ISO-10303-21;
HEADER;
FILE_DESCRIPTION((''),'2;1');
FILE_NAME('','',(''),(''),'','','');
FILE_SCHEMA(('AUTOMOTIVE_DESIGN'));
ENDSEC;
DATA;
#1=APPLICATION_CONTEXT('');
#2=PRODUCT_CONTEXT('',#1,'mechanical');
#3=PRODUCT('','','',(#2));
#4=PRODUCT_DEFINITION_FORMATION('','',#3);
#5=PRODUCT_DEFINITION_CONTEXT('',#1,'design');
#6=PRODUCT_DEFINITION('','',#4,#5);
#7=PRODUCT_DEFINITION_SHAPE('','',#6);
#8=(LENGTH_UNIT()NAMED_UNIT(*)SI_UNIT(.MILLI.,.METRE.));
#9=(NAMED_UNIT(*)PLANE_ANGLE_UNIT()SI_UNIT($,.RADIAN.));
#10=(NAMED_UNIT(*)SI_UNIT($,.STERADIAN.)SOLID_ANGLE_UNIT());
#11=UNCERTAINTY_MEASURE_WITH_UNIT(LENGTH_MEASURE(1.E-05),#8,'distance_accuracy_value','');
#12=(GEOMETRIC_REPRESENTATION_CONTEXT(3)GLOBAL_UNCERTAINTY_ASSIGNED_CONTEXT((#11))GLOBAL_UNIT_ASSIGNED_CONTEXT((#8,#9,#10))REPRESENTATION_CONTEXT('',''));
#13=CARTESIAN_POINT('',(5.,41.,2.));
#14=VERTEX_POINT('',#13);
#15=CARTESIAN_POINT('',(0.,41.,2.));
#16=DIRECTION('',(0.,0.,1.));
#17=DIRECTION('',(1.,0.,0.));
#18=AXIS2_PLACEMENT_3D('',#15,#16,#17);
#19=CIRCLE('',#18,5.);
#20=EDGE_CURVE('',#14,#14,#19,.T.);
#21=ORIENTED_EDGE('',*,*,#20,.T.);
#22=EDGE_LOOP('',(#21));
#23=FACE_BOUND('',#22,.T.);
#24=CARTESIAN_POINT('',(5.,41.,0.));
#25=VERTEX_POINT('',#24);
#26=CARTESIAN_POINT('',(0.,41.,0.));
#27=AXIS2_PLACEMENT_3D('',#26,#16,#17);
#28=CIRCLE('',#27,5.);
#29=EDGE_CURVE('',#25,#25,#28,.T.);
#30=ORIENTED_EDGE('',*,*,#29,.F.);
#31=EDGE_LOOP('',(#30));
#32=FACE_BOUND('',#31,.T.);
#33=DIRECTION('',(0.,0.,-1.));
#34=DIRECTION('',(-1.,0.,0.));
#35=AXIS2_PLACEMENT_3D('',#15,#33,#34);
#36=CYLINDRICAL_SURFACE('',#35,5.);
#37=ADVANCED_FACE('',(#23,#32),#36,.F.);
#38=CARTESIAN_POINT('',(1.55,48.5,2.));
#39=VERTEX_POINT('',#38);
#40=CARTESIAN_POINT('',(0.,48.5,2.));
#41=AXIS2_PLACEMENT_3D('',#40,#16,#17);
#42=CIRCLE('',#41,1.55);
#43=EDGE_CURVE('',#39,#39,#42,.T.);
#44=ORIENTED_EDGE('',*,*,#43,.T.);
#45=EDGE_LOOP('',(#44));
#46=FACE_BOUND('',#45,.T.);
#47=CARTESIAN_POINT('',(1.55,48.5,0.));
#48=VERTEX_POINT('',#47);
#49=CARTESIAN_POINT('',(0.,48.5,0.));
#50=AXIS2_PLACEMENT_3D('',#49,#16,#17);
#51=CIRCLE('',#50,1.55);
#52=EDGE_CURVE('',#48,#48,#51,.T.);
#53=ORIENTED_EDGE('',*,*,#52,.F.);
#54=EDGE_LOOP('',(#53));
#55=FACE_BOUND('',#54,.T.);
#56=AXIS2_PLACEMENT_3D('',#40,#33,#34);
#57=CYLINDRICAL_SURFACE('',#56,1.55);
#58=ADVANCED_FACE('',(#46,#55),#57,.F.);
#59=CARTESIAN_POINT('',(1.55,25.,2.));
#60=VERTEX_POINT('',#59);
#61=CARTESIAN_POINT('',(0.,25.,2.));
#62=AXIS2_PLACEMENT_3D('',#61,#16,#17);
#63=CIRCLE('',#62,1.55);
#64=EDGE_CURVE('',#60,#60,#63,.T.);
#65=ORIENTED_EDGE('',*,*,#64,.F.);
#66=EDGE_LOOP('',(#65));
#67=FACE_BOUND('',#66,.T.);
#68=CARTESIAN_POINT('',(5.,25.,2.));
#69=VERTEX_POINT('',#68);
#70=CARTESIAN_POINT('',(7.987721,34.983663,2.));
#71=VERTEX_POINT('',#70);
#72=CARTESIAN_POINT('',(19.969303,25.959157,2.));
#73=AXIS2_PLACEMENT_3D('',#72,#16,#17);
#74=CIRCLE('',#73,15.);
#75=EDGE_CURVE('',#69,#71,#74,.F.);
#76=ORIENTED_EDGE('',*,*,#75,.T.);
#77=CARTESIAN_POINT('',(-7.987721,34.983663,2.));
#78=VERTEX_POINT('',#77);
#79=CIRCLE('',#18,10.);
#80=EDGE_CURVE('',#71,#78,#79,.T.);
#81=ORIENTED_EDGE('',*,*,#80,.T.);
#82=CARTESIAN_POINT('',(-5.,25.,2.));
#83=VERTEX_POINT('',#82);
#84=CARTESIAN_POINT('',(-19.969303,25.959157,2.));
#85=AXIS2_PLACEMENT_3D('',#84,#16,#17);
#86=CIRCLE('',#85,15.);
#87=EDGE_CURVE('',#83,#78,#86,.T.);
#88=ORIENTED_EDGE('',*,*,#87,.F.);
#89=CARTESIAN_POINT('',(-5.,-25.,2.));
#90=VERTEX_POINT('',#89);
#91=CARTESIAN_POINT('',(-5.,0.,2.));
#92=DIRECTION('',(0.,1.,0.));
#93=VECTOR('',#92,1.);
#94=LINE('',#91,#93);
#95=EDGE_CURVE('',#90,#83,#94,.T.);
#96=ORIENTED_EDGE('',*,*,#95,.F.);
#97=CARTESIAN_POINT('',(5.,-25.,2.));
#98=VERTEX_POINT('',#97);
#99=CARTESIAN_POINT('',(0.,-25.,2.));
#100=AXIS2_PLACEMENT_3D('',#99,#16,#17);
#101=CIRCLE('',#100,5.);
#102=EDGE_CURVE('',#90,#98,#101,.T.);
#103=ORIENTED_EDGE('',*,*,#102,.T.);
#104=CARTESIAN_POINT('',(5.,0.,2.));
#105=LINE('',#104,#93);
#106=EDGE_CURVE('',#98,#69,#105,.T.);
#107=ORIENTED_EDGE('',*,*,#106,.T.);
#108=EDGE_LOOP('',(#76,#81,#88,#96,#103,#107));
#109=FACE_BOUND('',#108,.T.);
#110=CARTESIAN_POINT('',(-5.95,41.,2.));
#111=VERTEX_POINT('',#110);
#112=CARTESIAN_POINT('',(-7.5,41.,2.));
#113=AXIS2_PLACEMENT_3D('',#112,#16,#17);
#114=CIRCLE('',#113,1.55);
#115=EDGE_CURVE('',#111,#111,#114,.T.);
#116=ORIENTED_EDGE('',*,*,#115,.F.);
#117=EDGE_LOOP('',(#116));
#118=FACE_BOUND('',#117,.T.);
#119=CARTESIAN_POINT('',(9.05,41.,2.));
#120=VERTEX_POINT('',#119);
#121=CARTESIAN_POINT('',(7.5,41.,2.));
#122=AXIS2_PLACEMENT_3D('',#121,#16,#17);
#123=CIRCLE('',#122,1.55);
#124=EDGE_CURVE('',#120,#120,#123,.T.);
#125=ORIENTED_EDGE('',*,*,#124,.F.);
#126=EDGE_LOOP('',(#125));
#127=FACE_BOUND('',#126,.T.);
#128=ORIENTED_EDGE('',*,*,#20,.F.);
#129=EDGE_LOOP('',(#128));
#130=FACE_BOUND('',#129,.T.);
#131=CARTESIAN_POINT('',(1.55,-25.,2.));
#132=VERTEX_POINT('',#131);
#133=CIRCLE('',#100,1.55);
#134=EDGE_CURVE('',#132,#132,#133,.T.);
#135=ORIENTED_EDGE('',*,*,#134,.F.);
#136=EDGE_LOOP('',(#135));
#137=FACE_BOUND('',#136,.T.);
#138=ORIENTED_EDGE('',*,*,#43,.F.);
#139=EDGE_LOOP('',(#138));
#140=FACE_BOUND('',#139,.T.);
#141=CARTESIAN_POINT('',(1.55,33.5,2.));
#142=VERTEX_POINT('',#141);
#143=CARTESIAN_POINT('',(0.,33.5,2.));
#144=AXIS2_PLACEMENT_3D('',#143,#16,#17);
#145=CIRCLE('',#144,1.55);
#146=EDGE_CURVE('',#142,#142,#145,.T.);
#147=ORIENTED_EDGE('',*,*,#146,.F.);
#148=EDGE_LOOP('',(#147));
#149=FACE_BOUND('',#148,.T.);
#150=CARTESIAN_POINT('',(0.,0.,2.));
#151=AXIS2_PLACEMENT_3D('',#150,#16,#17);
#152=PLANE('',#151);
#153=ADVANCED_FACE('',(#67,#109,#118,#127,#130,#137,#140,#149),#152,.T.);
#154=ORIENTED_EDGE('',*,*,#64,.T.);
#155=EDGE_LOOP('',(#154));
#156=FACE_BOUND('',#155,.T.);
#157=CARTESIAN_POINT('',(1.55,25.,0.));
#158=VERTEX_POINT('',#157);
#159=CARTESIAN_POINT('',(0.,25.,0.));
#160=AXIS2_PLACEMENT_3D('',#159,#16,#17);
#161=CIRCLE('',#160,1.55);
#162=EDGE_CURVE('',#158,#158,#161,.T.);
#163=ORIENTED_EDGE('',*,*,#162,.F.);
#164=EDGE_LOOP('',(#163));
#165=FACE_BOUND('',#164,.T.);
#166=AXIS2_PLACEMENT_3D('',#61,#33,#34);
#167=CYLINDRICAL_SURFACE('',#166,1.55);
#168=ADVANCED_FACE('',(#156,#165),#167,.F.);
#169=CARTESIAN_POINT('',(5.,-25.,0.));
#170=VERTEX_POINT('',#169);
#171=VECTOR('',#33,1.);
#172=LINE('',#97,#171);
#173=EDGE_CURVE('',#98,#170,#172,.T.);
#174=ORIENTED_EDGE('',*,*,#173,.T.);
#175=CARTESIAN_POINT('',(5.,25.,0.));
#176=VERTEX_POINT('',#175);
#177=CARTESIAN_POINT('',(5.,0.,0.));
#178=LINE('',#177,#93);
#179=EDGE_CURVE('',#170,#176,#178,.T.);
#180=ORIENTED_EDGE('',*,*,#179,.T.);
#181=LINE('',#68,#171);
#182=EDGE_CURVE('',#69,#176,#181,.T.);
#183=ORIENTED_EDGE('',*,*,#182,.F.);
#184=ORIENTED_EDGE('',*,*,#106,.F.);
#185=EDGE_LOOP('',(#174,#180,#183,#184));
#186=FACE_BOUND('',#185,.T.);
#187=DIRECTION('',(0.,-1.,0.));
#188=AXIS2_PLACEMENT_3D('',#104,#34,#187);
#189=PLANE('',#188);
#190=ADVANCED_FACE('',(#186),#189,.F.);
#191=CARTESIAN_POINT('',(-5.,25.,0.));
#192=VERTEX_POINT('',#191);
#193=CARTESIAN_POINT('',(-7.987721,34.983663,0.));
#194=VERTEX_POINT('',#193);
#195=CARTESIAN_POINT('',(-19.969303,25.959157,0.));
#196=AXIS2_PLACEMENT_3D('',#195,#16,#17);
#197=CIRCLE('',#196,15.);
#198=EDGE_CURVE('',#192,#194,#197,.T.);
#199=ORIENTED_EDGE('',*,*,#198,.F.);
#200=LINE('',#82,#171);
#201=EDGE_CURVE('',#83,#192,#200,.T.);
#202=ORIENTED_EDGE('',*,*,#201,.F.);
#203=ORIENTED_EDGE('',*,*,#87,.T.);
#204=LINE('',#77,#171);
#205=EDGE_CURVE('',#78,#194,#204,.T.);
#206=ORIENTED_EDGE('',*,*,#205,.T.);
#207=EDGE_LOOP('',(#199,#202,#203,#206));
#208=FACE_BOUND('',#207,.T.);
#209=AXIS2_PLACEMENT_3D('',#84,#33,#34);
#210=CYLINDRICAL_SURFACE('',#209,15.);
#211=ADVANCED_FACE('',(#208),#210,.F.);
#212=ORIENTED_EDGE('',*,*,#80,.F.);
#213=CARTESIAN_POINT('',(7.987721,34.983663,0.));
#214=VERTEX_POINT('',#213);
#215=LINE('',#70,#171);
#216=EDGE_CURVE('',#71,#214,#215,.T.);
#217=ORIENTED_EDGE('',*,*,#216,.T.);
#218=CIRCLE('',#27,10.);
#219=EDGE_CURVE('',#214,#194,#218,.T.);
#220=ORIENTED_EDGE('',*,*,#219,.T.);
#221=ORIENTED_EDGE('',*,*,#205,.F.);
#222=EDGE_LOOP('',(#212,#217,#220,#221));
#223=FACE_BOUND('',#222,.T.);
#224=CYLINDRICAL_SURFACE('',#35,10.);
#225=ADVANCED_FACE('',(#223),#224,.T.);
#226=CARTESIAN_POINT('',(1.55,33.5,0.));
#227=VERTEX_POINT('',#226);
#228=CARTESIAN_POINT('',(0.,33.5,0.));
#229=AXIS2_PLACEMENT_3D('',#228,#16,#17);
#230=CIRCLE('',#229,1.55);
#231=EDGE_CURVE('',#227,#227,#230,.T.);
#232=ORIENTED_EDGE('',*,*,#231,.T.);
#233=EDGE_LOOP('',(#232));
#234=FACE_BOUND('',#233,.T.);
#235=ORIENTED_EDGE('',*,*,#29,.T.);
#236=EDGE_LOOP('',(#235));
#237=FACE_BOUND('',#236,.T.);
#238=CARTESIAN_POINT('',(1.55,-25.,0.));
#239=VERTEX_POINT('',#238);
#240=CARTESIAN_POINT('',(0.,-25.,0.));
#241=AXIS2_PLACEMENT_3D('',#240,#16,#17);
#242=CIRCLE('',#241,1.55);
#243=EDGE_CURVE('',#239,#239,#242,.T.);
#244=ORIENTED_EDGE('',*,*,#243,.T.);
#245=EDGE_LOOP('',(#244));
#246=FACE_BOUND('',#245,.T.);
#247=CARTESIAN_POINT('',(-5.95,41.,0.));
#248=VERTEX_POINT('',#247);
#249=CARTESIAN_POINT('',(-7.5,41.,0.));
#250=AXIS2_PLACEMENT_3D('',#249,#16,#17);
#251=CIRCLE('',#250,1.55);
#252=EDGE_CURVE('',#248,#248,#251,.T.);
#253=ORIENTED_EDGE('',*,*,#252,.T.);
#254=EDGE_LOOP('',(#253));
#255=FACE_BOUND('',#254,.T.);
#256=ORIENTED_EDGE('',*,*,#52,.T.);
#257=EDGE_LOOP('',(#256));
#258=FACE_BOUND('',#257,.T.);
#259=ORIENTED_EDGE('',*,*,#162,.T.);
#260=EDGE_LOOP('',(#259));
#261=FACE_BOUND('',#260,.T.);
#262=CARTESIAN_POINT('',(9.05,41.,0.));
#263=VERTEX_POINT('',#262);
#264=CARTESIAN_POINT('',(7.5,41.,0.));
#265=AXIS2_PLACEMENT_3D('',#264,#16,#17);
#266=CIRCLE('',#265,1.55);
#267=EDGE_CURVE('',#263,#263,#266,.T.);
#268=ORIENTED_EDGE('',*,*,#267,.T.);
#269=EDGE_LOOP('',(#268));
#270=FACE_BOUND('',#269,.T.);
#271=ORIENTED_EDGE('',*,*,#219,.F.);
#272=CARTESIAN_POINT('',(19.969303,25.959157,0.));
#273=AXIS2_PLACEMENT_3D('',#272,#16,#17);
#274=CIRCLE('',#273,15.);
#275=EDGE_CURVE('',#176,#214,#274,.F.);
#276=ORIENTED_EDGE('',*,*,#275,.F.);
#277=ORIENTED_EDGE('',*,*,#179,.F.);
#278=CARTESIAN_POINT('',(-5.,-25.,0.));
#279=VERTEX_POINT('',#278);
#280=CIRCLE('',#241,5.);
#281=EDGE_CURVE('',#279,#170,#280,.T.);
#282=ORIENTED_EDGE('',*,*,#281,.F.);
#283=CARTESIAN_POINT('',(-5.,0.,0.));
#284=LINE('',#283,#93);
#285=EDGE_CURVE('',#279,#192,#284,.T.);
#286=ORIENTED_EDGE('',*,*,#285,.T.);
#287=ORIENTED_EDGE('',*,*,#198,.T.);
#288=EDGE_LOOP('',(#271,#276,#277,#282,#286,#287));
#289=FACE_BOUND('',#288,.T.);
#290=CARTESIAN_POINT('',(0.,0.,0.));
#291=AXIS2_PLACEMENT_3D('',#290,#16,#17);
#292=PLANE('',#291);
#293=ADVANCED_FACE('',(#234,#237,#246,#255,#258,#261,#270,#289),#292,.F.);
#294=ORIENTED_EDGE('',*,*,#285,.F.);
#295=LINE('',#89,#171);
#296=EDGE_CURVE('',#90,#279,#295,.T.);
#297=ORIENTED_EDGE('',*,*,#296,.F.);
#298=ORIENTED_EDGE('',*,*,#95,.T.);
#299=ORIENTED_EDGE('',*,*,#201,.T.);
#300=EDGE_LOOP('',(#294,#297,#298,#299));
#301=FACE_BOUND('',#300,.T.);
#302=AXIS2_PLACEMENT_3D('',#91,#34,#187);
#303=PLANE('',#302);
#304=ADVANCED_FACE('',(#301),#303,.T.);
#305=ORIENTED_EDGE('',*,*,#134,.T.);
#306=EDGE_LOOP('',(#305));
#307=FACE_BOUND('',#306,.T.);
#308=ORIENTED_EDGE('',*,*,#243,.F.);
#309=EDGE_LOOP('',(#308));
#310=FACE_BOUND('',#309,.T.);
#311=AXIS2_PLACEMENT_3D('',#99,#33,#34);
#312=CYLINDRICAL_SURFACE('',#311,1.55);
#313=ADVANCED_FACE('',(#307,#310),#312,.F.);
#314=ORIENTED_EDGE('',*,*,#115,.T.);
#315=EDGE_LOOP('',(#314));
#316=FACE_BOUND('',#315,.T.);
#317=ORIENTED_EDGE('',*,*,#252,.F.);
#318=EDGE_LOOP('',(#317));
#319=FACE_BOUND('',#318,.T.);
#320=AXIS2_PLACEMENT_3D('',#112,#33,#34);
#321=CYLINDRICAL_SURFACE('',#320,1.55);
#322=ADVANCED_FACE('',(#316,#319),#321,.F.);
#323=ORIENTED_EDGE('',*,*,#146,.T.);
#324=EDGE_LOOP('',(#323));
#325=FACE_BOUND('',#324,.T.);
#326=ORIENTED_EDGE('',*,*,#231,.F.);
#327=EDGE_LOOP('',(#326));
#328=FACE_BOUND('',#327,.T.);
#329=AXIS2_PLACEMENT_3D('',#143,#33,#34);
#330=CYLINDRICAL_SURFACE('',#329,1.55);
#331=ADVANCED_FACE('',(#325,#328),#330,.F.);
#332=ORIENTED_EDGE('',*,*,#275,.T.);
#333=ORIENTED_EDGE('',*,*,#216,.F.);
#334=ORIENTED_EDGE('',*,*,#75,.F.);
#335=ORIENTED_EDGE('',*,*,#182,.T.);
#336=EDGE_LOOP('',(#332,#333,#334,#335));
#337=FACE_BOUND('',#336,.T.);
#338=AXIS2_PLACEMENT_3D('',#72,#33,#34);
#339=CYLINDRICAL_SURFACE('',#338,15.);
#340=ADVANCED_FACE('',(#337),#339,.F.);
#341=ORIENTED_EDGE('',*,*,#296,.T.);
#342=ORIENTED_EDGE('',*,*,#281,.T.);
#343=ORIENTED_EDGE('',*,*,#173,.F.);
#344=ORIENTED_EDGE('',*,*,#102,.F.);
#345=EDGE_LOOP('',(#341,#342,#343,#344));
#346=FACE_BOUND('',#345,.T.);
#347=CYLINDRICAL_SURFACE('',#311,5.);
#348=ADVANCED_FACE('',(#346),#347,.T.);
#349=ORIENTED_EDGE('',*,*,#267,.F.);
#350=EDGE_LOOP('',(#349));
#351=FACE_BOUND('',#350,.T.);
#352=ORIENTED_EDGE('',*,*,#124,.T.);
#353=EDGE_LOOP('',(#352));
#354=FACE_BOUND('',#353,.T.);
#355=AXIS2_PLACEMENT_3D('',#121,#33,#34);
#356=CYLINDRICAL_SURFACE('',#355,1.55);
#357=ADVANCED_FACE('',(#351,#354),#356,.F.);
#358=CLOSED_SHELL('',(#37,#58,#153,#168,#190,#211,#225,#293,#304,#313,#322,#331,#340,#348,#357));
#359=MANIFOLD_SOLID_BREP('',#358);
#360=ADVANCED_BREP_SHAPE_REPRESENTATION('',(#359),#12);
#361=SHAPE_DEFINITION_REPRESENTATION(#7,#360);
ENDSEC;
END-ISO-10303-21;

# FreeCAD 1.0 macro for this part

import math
import FreeCAD as App
import Part
import Sketcher

V = App.Vector
Q = App.Units.Quantity

doc = App.newDocument("Part")
body = doc.addObject("PartDesign::Body", "Body")

sketch1 = doc.addObject("Sketcher::SketchObject", "Sketch")
body.addObject(sketch1)
sketch1.AttachmentSupport = (doc.XY_Plane, [""])
sketch1.MapMode = "FlatFace"
sketch1.addGeometry([
    Part.LineSegment(V(-5, 25, 0), V(-5, -25, 0)),
    Part.ArcOfCircle(Part.Circle(V(0, -25, 0), V(0, 0, 1), 5), math.radians(180), math.radians(360)),
    Part.LineSegment(V(5, -25, 0), V(5, 25, 0)),
    Part.ArcOfCircle(Part.Circle(V(19.969303, 25.959157, 0), V(0, 0, 1), 15), math.radians(143.013006), math.radians(183.666211)),
    Part.ArcOfCircle(Part.Circle(V(0, 41, 0), V(0, 0, 1), 10), math.radians(-36.986994), math.radians(216.986994)),
    Part.ArcOfCircle(Part.Circle(V(-19.969303, 25.959157, 0), V(0, 0, 1), 15), math.radians(-3.666211), math.radians(36.986994)),
    Part.Circle(V(0, -25, 0), V(0, 0, 1), 1.55),
    Part.Circle(V(0, 25, 0), V(0, 0, 1), 1.55),
    Part.Circle(V(-7.5, 41, 0), V(0, 0, 1), 1.55),
    Part.Circle(V(0, 33.5, 0), V(0, 0, 1), 1.55),
    Part.Circle(V(0, 48.5, 0), V(0, 0, 1), 1.55),
    Part.Circle(V(0, 41, 0), V(0, 0, 1), 5),
    Part.Circle(V(7.5, 41, 0), V(0, 0, 1), 1.55),
], False)
sketch1.addConstraint([
    Sketcher.Constraint("Tangent", 0, 2, 1, 1),
    Sketcher.Constraint("Tangent", 1, 2, 2, 1),
    Sketcher.Constraint("Coincident", 2, 2, 3, 2),
    Sketcher.Constraint("Tangent", 3, 1, 4, 1),
    Sketcher.Constraint("Tangent", 4, 2, 5, 2),
    Sketcher.Constraint("Coincident", 5, 1, 0, 1),
    Sketcher.Constraint("Vertical", 0),
    Sketcher.Constraint("Vertical", 2),
    Sketcher.Constraint("Coincident", 6, 3, 1, 3),
    Sketcher.Constraint("Coincident", 11, 3, 4, 3),
    Sketcher.Constraint("Equal", 3, 5),
    Sketcher.Constraint("Equal", 6, 7),
    Sketcher.Constraint("Equal", 7, 8),
    Sketcher.Constraint("Equal", 8, 9),
    Sketcher.Constraint("Equal", 9, 10),
    Sketcher.Constraint("Equal", 1, 11),
    Sketcher.Constraint("Equal", 10, 12),
    Sketcher.Constraint("Symmetric", 1, 3, 7, 3, -1, 1),
    Sketcher.Constraint("Symmetric", 0, 2, 2, 2, -1, 1),
    Sketcher.Constraint("Symmetric", 3, 3, 5, 3, -2),
    Sketcher.Constraint("Symmetric", 8, 3, 12, 3, -2),
    Sketcher.Constraint("PointOnObject", 9, 3, -2),
    Sketcher.Constraint("PointOnObject", 10, 3, -2),
    Sketcher.Constraint("Horizontal", 4, 3, 8, 3),
    Sketcher.Constraint("Diameter", 11, Q("10 mm")),
    Sketcher.Constraint("Radius", 3, Q("15 mm")),
    Sketcher.Constraint("Radius", 4, Q("10 mm")),
    Sketcher.Constraint("Diameter", 6, Q("3.1 mm")),
    Sketcher.Constraint("DistanceY", 0, 2, 0, 1, Q("50 mm")),
    Sketcher.Constraint("DistanceY", -1, 1, 4, 3, Q("41 mm")),
    Sketcher.Constraint("DistanceY", 9, 3, 10, 3, Q("15 mm")),
    Sketcher.Constraint("DistanceX", 8, 3, 12, 3, Q("15 mm")),
    Sketcher.Constraint("DistanceY", -1, 1, 9, 3, Q("33.5 mm")),
])
pad1 = doc.addObject("PartDesign::Pad", "Pad")
body.addObject(pad1)
pad1.Profile = sketch1
pad1.Length = 2

doc.recompute()
